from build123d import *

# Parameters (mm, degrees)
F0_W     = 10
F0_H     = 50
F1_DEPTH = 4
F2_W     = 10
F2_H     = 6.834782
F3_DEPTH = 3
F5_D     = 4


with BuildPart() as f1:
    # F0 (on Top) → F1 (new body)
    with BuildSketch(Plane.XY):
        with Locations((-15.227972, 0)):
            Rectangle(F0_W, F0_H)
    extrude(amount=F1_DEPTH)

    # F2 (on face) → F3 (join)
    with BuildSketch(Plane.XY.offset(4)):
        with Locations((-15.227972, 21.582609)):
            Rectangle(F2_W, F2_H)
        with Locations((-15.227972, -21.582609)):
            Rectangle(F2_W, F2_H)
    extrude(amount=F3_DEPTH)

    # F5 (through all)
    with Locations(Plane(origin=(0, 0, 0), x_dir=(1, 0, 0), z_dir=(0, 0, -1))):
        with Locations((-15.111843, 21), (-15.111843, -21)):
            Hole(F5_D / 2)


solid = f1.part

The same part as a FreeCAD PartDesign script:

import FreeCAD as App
import Part
import Sketcher
from FreeCAD import Vector
Q = App.Units.Quantity

doc = App.newDocument("Part")
body = doc.addObject("PartDesign::Body", "Body")

# Sketch on XY plane
sketch1 = doc.addObject("Sketcher::SketchObject", "Sketch")
body.addObject(sketch1)
sketch1.AttachmentSupport = (doc.XY_Plane, [""])
sketch1.MapMode = "FlatFace"
sketch1.addGeometry([
    Part.LineSegment(Vector(-20.227972, 25, 0), Vector(-20.227972, -25, 0)),
    Part.LineSegment(Vector(-20.227972, -25, 0), Vector(-10.227972, -25, 0)),
    Part.LineSegment(Vector(-10.227972, -25, 0), Vector(-10.227972, 25, 0)),
    Part.LineSegment(Vector(-10.227972, 25, 0), Vector(-20.227972, 25, 0)),
], False)
sketch1.addConstraint([
    Sketcher.Constraint("Coincident", 0, 2, 1, 1),
    Sketcher.Constraint("Coincident", 1, 2, 2, 1),
    Sketcher.Constraint("Coincident", 2, 2, 3, 1),
    Sketcher.Constraint("Coincident", 3, 2, 0, 1),
    Sketcher.Constraint("Vertical", 0),
    Sketcher.Constraint("Horizontal", 1),
    Sketcher.Constraint("Vertical", 2),
    Sketcher.Constraint("Horizontal", 3),
    Sketcher.Constraint("DistanceX", 1, 1, 1, 2, Q("10 mm")),
    Sketcher.Constraint("DistanceY", 0, 2, 0, 1, Q("50 mm")),
    Sketcher.Constraint("DistanceY", 0, 2, -1, 1, Q("25 mm")),
    Sketcher.Constraint("DistanceX", 0, 2, -1, 1, Q("20.227972 mm")),
])
pad1 = doc.addObject("PartDesign::Pad", "Pad")
body.addObject(pad1)
pad1.Profile = sketch1
pad1.Length = 4

# Sketch on XY plane
sketch2 = doc.addObject("Sketcher::SketchObject", "Sketch001")
body.addObject(sketch2)
sketch2.AttachmentSupport = (doc.XY_Plane, [""])
sketch2.MapMode = "FlatFace"
sketch2.AttachmentOffset = App.Placement(Vector(0, 0, 4), App.Rotation())
sketch2.addGeometry([
    Part.LineSegment(Vector(-20.227972, 25, 0), Vector(-20.227972, 18.165218, 0)),  # 0
    Part.LineSegment(Vector(-20.227972, 18.165218, 0), Vector(-10.227972, 18.165218, 0)),  # 1
    Part.LineSegment(Vector(-10.227972, 18.165218, 0), Vector(-10.227972, 25, 0)),  # 2
    Part.LineSegment(Vector(-10.227972, 25, 0), Vector(-20.227972, 25, 0)),  # 3
    Part.LineSegment(Vector(-20.227972, -18.165218, 0), Vector(-20.227972, -25, 0)),  # 4
    Part.LineSegment(Vector(-20.227972, -25, 0), Vector(-10.227972, -25, 0)),  # 5
    Part.LineSegment(Vector(-10.227972, -25, 0), Vector(-10.227972, -18.165218, 0)),  # 6
    Part.LineSegment(Vector(-10.227972, -18.165218, 0), Vector(-20.227972, -18.165218, 0)),  # 7
], False)
sketch2.addConstraint([
    Sketcher.Constraint("Coincident", 0, 2, 1, 1),
    Sketcher.Constraint("Coincident", 1, 2, 2, 1),
    Sketcher.Constraint("Coincident", 2, 2, 3, 1),
    Sketcher.Constraint("Coincident", 3, 2, 0, 1),
    Sketcher.Constraint("Coincident", 4, 2, 5, 1),
    Sketcher.Constraint("Coincident", 5, 2, 6, 1),
    Sketcher.Constraint("Coincident", 6, 2, 7, 1),
    Sketcher.Constraint("Coincident", 7, 2, 4, 1),
    Sketcher.Constraint("Vertical", 0),
    Sketcher.Constraint("Horizontal", 1),
    Sketcher.Constraint("Vertical", 2),
    Sketcher.Constraint("Horizontal", 3),
    Sketcher.Constraint("Vertical", 4),
    Sketcher.Constraint("Horizontal", 5),
    Sketcher.Constraint("Vertical", 6),
    Sketcher.Constraint("Horizontal", 7),
    Sketcher.Constraint("Symmetric", 3, 2, 4, 2, -1),
    Sketcher.Constraint("Symmetric", 1, 2, 6, 2, -1),
    Sketcher.Constraint("DistanceX", 1, 1, 1, 2, Q("10 mm")),
    Sketcher.Constraint("DistanceY", -1, 1, 2, 2, Q("25 mm")),
    Sketcher.Constraint("DistanceY", 0, 2, 0, 1, Q("6.834782 mm")),
    Sketcher.Constraint("DistanceX", 0, 2, -1, 1, Q("20.227972 mm")),
])
pad2 = doc.addObject("PartDesign::Pad", "Pad001")
body.addObject(pad2)
pad2.Profile = sketch2
pad2.Length = 3

# Sketch on XY plane
sketch3 = doc.addObject("Sketcher::SketchObject", "Sketch002")
body.addObject(sketch3)
sketch3.AttachmentSupport = (doc.XY_Plane, [""])
sketch3.MapMode = "FlatFace"
sketch3.addGeometry([
    Part.Circle(Vector(-15.111843, -21, 0), Vector(0, 0, 1), 2),
    Part.Circle(Vector(-15.111843, 21, 0), Vector(0, 0, 1), 2),
], False)
sketch3.addConstraint([
    Sketcher.Constraint("Equal", 0, 1),
    Sketcher.Constraint("Symmetric", 0, 3, 1, 3, -1),
    Sketcher.Constraint("Diameter", 0, Q("4 mm")),
    Sketcher.Constraint("DistanceY", 0, 3, -1, 1, Q("21 mm")),
    Sketcher.Constraint("DistanceX", 0, 3, -1, 1, Q("15.111843 mm")),
])
doc.recompute()
hole = doc.addObject("PartDesign::Hole", "Hole")
body.addObject(hole)
hole.Profile = sketch3
hole.ThreadType = "None"
hole.Diameter = 4
hole.DepthType = "ThroughAll"
hole.Reversed = True

doc.recompute()
